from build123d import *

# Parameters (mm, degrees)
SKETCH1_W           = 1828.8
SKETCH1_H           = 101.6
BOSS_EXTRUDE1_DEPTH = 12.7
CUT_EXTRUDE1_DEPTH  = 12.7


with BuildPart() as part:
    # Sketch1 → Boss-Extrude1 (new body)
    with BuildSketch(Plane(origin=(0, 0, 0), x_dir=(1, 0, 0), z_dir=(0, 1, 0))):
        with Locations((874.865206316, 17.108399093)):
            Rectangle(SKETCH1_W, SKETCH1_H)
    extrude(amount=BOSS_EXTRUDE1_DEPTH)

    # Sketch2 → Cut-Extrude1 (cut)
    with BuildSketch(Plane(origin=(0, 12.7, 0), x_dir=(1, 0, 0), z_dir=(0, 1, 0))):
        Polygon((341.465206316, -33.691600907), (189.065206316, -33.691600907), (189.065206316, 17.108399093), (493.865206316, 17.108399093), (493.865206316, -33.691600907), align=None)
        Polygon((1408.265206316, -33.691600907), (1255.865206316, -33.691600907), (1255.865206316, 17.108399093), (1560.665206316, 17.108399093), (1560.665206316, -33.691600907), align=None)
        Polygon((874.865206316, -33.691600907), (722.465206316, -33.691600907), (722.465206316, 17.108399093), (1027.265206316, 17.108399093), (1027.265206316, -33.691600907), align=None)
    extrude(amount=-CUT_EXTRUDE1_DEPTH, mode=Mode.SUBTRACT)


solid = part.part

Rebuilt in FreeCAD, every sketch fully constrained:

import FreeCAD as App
import Part
import Sketcher

V = App.Vector
Q = App.Units.Quantity


def add_polygon(sketch, points):
    """Adds a closed chain of lines whose ends are joined by coincident constraints."""
    first, n = sketch.GeometryCount, len(points)
    for a, b in zip(points, points[1:] + points[:1]):
        sketch.addGeometry(Part.LineSegment(App.Vector(*a, 0), App.Vector(*b, 0)), False)
    for i in range(n):
        sketch.addConstraint(Sketcher.Constraint("Coincident", first + i, 2, first + (i + 1) % n, 1))

doc = App.newDocument("Part")
body = doc.addObject("PartDesign::Body", "Body")

# Sketch on XZ plane
sketch1 = doc.addObject("Sketcher::SketchObject", "Sketch")
body.addObject(sketch1)
sketch1.AttachmentSupport = (doc.XZ_Plane, [""])
sketch1.MapMode = "FlatFace"
add_polygon(sketch1, [(-40, -68), (-40, 34), (1789, 34), (1789, -68)])  # lines 0-3
sketch1.addConstraint([
    Sketcher.Constraint("Vertical", 0),
    Sketcher.Constraint("Horizontal", 1),
    Sketcher.Constraint("Vertical", 2),
    Sketcher.Constraint("Horizontal", 3),
    Sketcher.Constraint("DistanceX", 1, 1, 1, 2, Q("72 in")),
    Sketcher.Constraint("DistanceY", 0, 1, 0, 2, Q("4 in")),
    Sketcher.Constraint("DistanceY", -1, 1, 0, 2, 33.691601),
    Sketcher.Constraint("DistanceX", 0, 2, -1, 1, 39.534794),
])
pad1 = doc.addObject("PartDesign::Pad", "Pad")
body.addObject(pad1)
pad1.Profile = sketch1
pad1.Length = Q("0.5 in")
pad1.Reversed = True

# Sketch on XZ plane
sketch2 = doc.addObject("Sketcher::SketchObject", "Sketch001")
body.addObject(sketch2)
sketch2.AttachmentSupport = (doc.XZ_Plane, [""])
sketch2.MapMode = "FlatFace"
sketch2.AttachmentOffset = App.Placement(V(0, 0, -0.5 * 25.4), App.Rotation())
add_polygon(sketch2, [(189, 34), (494, 34), (494, -17), (189, -17)])  # lines 0-3
add_polygon(sketch2, [(1256, 34), (1561, 34), (1561, -17), (1256, -17)])  # lines 4-7
add_polygon(sketch2, [(722, 34), (1027, 34), (1027, -17), (722, -17)])  # lines 8-11
sketch2.addConstraint([
    Sketcher.Constraint("Horizontal", 0),
    Sketcher.Constraint("Vertical", 1),
    Sketcher.Constraint("Horizontal", 2),
    Sketcher.Constraint("Vertical", 3),
    Sketcher.Constraint("Horizontal", 4),
    Sketcher.Constraint("Vertical", 5),
    Sketcher.Constraint("Horizontal", 6),
    Sketcher.Constraint("Vertical", 7),
    Sketcher.Constraint("Horizontal", 8),
    Sketcher.Constraint("Vertical", 9),
    Sketcher.Constraint("Horizontal", 10),
    Sketcher.Constraint("Vertical", 11),
    Sketcher.Constraint("Horizontal", 3, 2, 4, 2),
    Sketcher.Constraint("Horizontal", 2, 2, 5, 2),
    Sketcher.Constraint("Horizontal", 7, 2, 8, 2),
    Sketcher.Constraint("Horizontal", 6, 2, 9, 2),
    Sketcher.Constraint("Equal", 2, 4),
    Sketcher.Constraint("Equal", 6, 8),
    Sketcher.Constraint("DistanceX", 0, 1, 0, 2, Q("12 in")),
    Sketcher.Constraint("DistanceY", 1, 2, 1, 1, Q("2 in")),
    Sketcher.Constraint("DistanceX", 0, 2, 4, 2, Q("42 in")),
    Sketcher.Constraint("DistanceX", 8, 2, 7, 2, Q("9 in")),
    Sketcher.Constraint("DistanceY", -1, 1, 0, 2, 33.691601),
    Sketcher.Constraint("DistanceX", -1, 1, 0, 2, 493.865206),
])
pocket1 = doc.addObject("PartDesign::Pocket", "Pocket")
body.addObject(pocket1)
pocket1.Profile = sketch2
pocket1.Length = Q("0.5 in")
pocket1.Reversed = True

doc.recompute()
